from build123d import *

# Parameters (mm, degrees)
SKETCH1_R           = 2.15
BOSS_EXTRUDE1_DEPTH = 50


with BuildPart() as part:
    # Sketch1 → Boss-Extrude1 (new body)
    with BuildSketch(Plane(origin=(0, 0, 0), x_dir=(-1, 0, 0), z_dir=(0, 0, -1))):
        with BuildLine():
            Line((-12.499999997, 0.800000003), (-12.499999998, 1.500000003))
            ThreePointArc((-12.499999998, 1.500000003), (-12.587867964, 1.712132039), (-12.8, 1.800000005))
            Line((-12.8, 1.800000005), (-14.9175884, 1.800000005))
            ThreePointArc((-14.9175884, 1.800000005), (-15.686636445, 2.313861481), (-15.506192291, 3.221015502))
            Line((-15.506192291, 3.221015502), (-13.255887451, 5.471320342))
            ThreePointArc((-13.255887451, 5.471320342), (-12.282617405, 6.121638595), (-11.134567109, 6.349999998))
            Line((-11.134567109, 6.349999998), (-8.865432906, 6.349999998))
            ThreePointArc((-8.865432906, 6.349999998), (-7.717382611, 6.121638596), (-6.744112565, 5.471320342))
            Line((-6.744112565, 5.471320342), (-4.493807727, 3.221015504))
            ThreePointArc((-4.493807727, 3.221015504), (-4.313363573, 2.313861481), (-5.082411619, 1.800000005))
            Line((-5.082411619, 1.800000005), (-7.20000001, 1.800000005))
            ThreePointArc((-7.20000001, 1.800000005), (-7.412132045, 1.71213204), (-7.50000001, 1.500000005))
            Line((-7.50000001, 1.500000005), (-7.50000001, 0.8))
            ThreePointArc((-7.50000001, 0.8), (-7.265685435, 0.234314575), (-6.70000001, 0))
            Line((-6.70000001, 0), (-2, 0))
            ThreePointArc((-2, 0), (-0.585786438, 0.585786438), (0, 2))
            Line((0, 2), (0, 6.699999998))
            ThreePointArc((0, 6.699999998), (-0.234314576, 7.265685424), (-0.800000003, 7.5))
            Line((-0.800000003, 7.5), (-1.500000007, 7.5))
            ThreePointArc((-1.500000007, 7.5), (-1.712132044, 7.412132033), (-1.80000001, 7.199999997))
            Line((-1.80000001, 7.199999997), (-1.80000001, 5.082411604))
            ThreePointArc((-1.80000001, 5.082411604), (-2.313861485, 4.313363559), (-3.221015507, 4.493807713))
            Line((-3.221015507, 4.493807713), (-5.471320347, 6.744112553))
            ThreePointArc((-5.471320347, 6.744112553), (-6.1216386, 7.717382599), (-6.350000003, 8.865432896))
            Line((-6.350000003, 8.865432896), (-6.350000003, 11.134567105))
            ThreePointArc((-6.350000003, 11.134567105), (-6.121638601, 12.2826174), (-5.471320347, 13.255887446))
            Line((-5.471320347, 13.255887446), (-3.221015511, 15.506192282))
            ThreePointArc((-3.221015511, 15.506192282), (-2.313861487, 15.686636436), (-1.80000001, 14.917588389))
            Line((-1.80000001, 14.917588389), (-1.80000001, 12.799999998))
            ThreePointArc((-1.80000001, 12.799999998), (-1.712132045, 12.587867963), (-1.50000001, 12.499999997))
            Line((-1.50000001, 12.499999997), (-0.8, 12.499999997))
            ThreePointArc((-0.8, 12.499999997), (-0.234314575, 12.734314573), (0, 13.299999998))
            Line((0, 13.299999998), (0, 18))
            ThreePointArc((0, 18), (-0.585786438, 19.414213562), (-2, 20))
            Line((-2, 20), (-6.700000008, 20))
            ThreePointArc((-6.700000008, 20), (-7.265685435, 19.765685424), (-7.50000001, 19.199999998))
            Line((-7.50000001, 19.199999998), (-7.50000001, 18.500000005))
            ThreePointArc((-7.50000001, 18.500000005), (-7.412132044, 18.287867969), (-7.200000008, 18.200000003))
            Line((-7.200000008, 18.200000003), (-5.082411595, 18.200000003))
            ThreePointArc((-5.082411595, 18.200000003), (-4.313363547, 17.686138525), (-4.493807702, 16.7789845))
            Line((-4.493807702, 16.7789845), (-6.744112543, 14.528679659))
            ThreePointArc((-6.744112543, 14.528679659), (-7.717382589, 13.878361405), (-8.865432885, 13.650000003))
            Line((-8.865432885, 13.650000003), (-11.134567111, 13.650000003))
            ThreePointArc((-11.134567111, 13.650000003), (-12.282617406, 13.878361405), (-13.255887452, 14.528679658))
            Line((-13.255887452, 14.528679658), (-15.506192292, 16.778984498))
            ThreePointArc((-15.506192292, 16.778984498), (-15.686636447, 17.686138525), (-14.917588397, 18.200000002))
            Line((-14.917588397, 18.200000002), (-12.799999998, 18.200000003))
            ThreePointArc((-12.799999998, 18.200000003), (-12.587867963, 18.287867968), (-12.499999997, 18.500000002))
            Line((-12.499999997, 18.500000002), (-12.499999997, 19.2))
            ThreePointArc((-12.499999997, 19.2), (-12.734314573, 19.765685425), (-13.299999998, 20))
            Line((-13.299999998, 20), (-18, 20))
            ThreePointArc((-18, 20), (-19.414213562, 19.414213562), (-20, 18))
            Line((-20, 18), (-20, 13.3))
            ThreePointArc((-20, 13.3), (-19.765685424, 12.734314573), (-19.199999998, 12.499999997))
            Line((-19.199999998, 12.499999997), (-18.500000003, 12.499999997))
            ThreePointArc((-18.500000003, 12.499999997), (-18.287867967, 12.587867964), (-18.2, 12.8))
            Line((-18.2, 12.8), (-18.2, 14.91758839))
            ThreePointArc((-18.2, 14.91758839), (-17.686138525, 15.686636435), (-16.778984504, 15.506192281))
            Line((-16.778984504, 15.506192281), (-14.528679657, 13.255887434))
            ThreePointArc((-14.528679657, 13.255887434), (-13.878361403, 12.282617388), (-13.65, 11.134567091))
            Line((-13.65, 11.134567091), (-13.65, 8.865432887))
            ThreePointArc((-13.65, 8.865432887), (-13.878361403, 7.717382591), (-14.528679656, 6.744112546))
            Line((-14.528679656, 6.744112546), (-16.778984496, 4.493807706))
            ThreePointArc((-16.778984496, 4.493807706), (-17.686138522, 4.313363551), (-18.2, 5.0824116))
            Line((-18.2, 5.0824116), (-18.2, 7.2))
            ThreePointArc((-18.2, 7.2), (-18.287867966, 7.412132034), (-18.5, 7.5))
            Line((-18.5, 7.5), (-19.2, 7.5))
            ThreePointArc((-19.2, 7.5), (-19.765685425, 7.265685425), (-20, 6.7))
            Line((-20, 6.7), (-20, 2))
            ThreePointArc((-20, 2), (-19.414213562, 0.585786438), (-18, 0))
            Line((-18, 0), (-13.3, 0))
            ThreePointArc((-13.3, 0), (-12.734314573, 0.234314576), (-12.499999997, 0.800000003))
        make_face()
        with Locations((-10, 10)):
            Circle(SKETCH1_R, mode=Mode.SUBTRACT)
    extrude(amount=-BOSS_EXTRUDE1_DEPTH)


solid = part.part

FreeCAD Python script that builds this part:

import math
import FreeCAD as App
import Part
import Sketcher
Q = App.Units.Quantity

doc = App.newDocument("Part")
body = doc.addObject("PartDesign::Body", "Body")

# Sketch on XY plane
sketch1 = body.newObject("Sketcher::SketchObject", "Sketch")
sketch1.AttachmentSupport = (doc.getObject("XY_Plane"), [""])
sketch1.MapMode = "FlatFace"
sketch1.addGeometry([
    Part.LineSegment(App.Vector(12.5, 0.8, 0), App.Vector(12.5, 1.5, 0)),  # 0
    Part.ArcOfCircle(Part.Circle(App.Vector(12.8, 1.5, 0), App.Vector(0, 0, 1), 0.3), math.radians(90), math.radians(180)),  # 1
    Part.LineSegment(App.Vector(12.8, 1.8, 0), App.Vector(14.92, 1.8, 0)),  # 2
    Part.ArcOfCircle(Part.Circle(App.Vector(14.92, 2.63, 0), App.Vector(0, 0, 1), 0.83), math.radians(-90), math.radians(45)),  # 3
    Part.LineSegment(App.Vector(15.51, 3.22, 0), App.Vector(13.26, 5.47, 0)),  # 4
    Part.ArcOfCircle(Part.Circle(App.Vector(11.13, 3.35, 0), App.Vector(0, 0, 1), 3), math.radians(45), math.radians(90)),  # 5
    Part.LineSegment(App.Vector(11.13, 6.35, 0), App.Vector(8.87, 6.35, 0)),  # 6
    Part.ArcOfCircle(Part.Circle(App.Vector(8.87, 3.35, 0), App.Vector(0, 0, 1), 3), math.radians(90), math.radians(135)),  # 7
    Part.LineSegment(App.Vector(6.74, 5.47, 0), App.Vector(4.49, 3.22, 0)),  # 8
    Part.ArcOfCircle(Part.Circle(App.Vector(5.08, 2.63, 0), App.Vector(0, 0, 1), 0.83), math.radians(135), math.radians(270)),  # 9
    Part.LineSegment(App.Vector(5.08, 1.8, 0), App.Vector(7.2, 1.8, 0)),  # 10
    Part.ArcOfCircle(Part.Circle(App.Vector(7.2, 1.5, 0), App.Vector(0, 0, 1), 0.3), math.radians(0), math.radians(90)),  # 11
    Part.LineSegment(App.Vector(7.5, 1.5, 0), App.Vector(7.5, 0.8, 0)),  # 12
    Part.ArcOfCircle(Part.Circle(App.Vector(6.7, 0.8, 0), App.Vector(0, 0, 1), 0.8), math.radians(-90), math.radians(0)),  # 13
    Part.LineSegment(App.Vector(6.7, 0, 0), App.Vector(2, 0, 0)),  # 14
    Part.ArcOfCircle(Part.Circle(App.Vector(2, 2, 0), App.Vector(0, 0, 1), 2), math.radians(-180), math.radians(-90)),  # 15
    Part.LineSegment(App.Vector(0, 2, 0), App.Vector(0, 6.7, 0)),  # 16
    Part.ArcOfCircle(Part.Circle(App.Vector(0.8, 6.7, 0), App.Vector(0, 0, 1), 0.8), math.radians(90), math.radians(180)),  # 17
    Part.LineSegment(App.Vector(0.8, 7.5, 0), App.Vector(1.5, 7.5, 0)),  # 18
    Part.ArcOfCircle(Part.Circle(App.Vector(1.5, 7.2, 0), App.Vector(0, 0, 1), 0.3), math.radians(0), math.radians(90)),  # 19
    Part.LineSegment(App.Vector(1.8, 7.2, 0), App.Vector(1.8, 5.08, 0)),  # 20
    Part.ArcOfCircle(Part.Circle(App.Vector(2.63, 5.08, 0), App.Vector(0, 0, 1), 0.83), math.radians(180), math.radians(315)),  # 21
    Part.LineSegment(App.Vector(3.22, 4.49, 0), App.Vector(5.47, 6.74, 0)),  # 22
    Part.ArcOfCircle(Part.Circle(App.Vector(3.35, 8.87, 0), App.Vector(0, 0, 1), 3), math.radians(-45), math.radians(0)),  # 23
    Part.LineSegment(App.Vector(6.35, 8.87, 0), App.Vector(6.35, 11.13, 0)),  # 24
    Part.ArcOfCircle(Part.Circle(App.Vector(3.35, 11.13, 0), App.Vector(0, 0, 1), 3), math.radians(0), math.radians(45)),  # 25
    Part.LineSegment(App.Vector(5.47, 13.26, 0), App.Vector(3.22, 15.51, 0)),  # 26
    Part.ArcOfCircle(Part.Circle(App.Vector(2.63, 14.92, 0), App.Vector(0, 0, 1), 0.83), math.radians(45), math.radians(180)),  # 27
    Part.LineSegment(App.Vector(1.8, 14.92, 0), App.Vector(1.8, 12.8, 0)),  # 28
    Part.ArcOfCircle(Part.Circle(App.Vector(1.5, 12.8, 0), App.Vector(0, 0, 1), 0.3), math.radians(-90), math.radians(0)),  # 29
    Part.LineSegment(App.Vector(1.5, 12.5, 0), App.Vector(0.8, 12.5, 0)),  # 30
    Part.ArcOfCircle(Part.Circle(App.Vector(0.8, 13.3, 0), App.Vector(0, 0, 1), 0.8), math.radians(-180), math.radians(-90)),  # 31
    Part.LineSegment(App.Vector(0, 13.3, 0), App.Vector(0, 18, 0)),  # 32
    Part.ArcOfCircle(Part.Circle(App.Vector(2, 18, 0), App.Vector(0, 0, 1), 2), math.radians(90), math.radians(180)),  # 33
    Part.LineSegment(App.Vector(2, 20, 0), App.Vector(6.7, 20, 0)),  # 34
    Part.ArcOfCircle(Part.Circle(App.Vector(6.7, 19.2, 0), App.Vector(0, 0, 1), 0.8), math.radians(0), math.radians(90)),  # 35
    Part.LineSegment(App.Vector(7.5, 19.2, 0), App.Vector(7.5, 18.5, 0)),  # 36
    Part.ArcOfCircle(Part.Circle(App.Vector(7.2, 18.5, 0), App.Vector(0, 0, 1), 0.3), math.radians(-90), math.radians(0)),  # 37
    Part.LineSegment(App.Vector(7.2, 18.2, 0), App.Vector(5.08, 18.2, 0)),  # 38
    Part.ArcOfCircle(Part.Circle(App.Vector(5.08, 17.37, 0), App.Vector(0, 0, 1), 0.83), math.radians(90), math.radians(225)),  # 39
    Part.LineSegment(App.Vector(4.49, 16.78, 0), App.Vector(6.74, 14.53, 0)),  # 40
    Part.ArcOfCircle(Part.Circle(App.Vector(8.87, 16.65, 0), App.Vector(0, 0, 1), 3), math.radians(-135), math.radians(-90)),  # 41
    Part.LineSegment(App.Vector(8.87, 13.65, 0), App.Vector(11.13, 13.65, 0)),  # 42
    Part.ArcOfCircle(Part.Circle(App.Vector(11.13, 16.65, 0), App.Vector(0, 0, 1), 3), math.radians(-90), math.radians(-45)),  # 43
    Part.LineSegment(App.Vector(13.26, 14.53, 0), App.Vector(15.51, 16.78, 0)),  # 44
    Part.ArcOfCircle(Part.Circle(App.Vector(14.92, 17.37, 0), App.Vector(0, 0, 1), 0.83), math.radians(-45), math.radians(90)),  # 45
    Part.LineSegment(App.Vector(14.92, 18.2, 0), App.Vector(12.8, 18.2, 0)),  # 46
    Part.ArcOfCircle(Part.Circle(App.Vector(12.8, 18.5, 0), App.Vector(0, 0, 1), 0.3), math.radians(-180), math.radians(-90)),  # 47
    Part.LineSegment(App.Vector(12.5, 18.5, 0), App.Vector(12.5, 19.2, 0)),  # 48
    Part.ArcOfCircle(Part.Circle(App.Vector(13.3, 19.2, 0), App.Vector(0, 0, 1), 0.8), math.radians(90), math.radians(180)),  # 49
    Part.LineSegment(App.Vector(13.3, 20, 0), App.Vector(18, 20, 0)),  # 50
    Part.ArcOfCircle(Part.Circle(App.Vector(18, 18, 0), App.Vector(0, 0, 1), 2), math.radians(0), math.radians(90)),  # 51
    Part.LineSegment(App.Vector(20, 18, 0), App.Vector(20, 13.3, 0)),  # 52
    Part.ArcOfCircle(Part.Circle(App.Vector(19.2, 13.3, 0), App.Vector(0, 0, 1), 0.8), math.radians(-90), math.radians(0)),  # 53
    Part.LineSegment(App.Vector(19.2, 12.5, 0), App.Vector(18.5, 12.5, 0)),  # 54
    Part.ArcOfCircle(Part.Circle(App.Vector(18.5, 12.8, 0), App.Vector(0, 0, 1), 0.3), math.radians(-180), math.radians(-90)),  # 55
    Part.LineSegment(App.Vector(18.2, 12.8, 0), App.Vector(18.2, 14.92, 0)),  # 56
    Part.ArcOfCircle(Part.Circle(App.Vector(17.37, 14.92, 0), App.Vector(0, 0, 1), 0.83), math.radians(0), math.radians(135)),  # 57
    Part.LineSegment(App.Vector(16.78, 15.51, 0), App.Vector(14.53, 13.26, 0)),  # 58
    Part.ArcOfCircle(Part.Circle(App.Vector(16.65, 11.13, 0), App.Vector(0, 0, 1), 3), math.radians(135), math.radians(180)),  # 59
    Part.LineSegment(App.Vector(13.65, 11.13, 0), App.Vector(13.65, 8.87, 0)),  # 60
    Part.ArcOfCircle(Part.Circle(App.Vector(16.65, 8.87, 0), App.Vector(0, 0, 1), 3), math.radians(-180), math.radians(-135)),  # 61
    Part.LineSegment(App.Vector(14.53, 6.74, 0), App.Vector(16.78, 4.49, 0)),  # 62
    Part.ArcOfCircle(Part.Circle(App.Vector(17.37, 5.08, 0), App.Vector(0, 0, 1), 0.83), math.radians(-135), math.radians(0)),  # 63
    Part.LineSegment(App.Vector(18.2, 5.08, 0), App.Vector(18.2, 7.2, 0)),  # 64
    Part.ArcOfCircle(Part.Circle(App.Vector(18.5, 7.2, 0), App.Vector(0, 0, 1), 0.3), math.radians(90), math.radians(180)),  # 65
    Part.LineSegment(App.Vector(18.5, 7.5, 0), App.Vector(19.2, 7.5, 0)),  # 66
    Part.ArcOfCircle(Part.Circle(App.Vector(19.2, 6.7, 0), App.Vector(0, 0, 1), 0.8), math.radians(0), math.radians(90)),  # 67
    Part.LineSegment(App.Vector(20, 6.7, 0), App.Vector(20, 2, 0)),  # 68
    Part.ArcOfCircle(Part.Circle(App.Vector(18, 2, 0), App.Vector(0, 0, 1), 2), math.radians(-90), math.radians(0)),  # 69
    Part.LineSegment(App.Vector(18, 0, 0), App.Vector(13.3, 0, 0)),  # 70
    Part.ArcOfCircle(Part.Circle(App.Vector(13.3, 0.8, 0), App.Vector(0, 0, 1), 0.8), math.radians(180), math.radians(270)),  # 71
    Part.Circle(App.Vector(10, 10, 0), App.Vector(0, 0, 1), 2.15),  # 72
], False)
sketch1.addConstraint([
    Sketcher.Constraint("Tangent", 0, 2, 1, 2),
    Sketcher.Constraint("Tangent", 1, 1, 2, 1),
    Sketcher.Constraint("Tangent", 2, 2, 3, 1),
    Sketcher.Constraint("Tangent", 3, 2, 4, 1),
    Sketcher.Constraint("Tangent", 4, 2, 5, 1),
    Sketcher.Constraint("Tangent", 5, 2, 6, 1),
    Sketcher.Constraint("Tangent", 6, 2, 7, 1),
    Sketcher.Constraint("Tangent", 7, 2, 8, 1),
    Sketcher.Constraint("Tangent", 8, 2, 9, 1),
    Sketcher.Constraint("Tangent", 9, 2, 10, 1),
    Sketcher.Constraint("Tangent", 10, 2, 11, 2),
    Sketcher.Constraint("Tangent", 11, 1, 12, 1),
    Sketcher.Constraint("Tangent", 12, 2, 13, 2),
    Sketcher.Constraint("Tangent", 13, 1, 14, 1),
    Sketcher.Constraint("Tangent", 14, 2, 15, 2),
    Sketcher.Constraint("Tangent", 15, 1, 16, 1),
    Sketcher.Constraint("Tangent", 16, 2, 17, 2),
    Sketcher.Constraint("Tangent", 17, 1, 18, 1),
    Sketcher.Constraint("Tangent", 18, 2, 19, 2),
    Sketcher.Constraint("Tangent", 19, 1, 20, 1),
    Sketcher.Constraint("Tangent", 20, 2, 21, 1),
    Sketcher.Constraint("Tangent", 21, 2, 22, 1),
    Sketcher.Constraint("Tangent", 22, 2, 23, 1),
    Sketcher.Constraint("Tangent", 23, 2, 24, 1),
    Sketcher.Constraint("Tangent", 24, 2, 25, 1),
    Sketcher.Constraint("Tangent", 25, 2, 26, 1),
    Sketcher.Constraint("Tangent", 26, 2, 27, 1),
    Sketcher.Constraint("Tangent", 27, 2, 28, 1),
    Sketcher.Constraint("Tangent", 28, 2, 29, 2),
    Sketcher.Constraint("Tangent", 29, 1, 30, 1),
    Sketcher.Constraint("Tangent", 30, 2, 31, 2),
    Sketcher.Constraint("Tangent", 31, 1, 32, 1),
    Sketcher.Constraint("Tangent", 32, 2, 33, 2),
    Sketcher.Constraint("Tangent", 33, 1, 34, 1),
    Sketcher.Constraint("Tangent", 34, 2, 35, 2),
    Sketcher.Constraint("Tangent", 35, 1, 36, 1),
    Sketcher.Constraint("Tangent", 36, 2, 37, 2),
    Sketcher.Constraint("Tangent", 37, 1, 38, 1),
    Sketcher.Constraint("Tangent", 38, 2, 39, 1),
    Sketcher.Constraint("Tangent", 39, 2, 40, 1),
    Sketcher.Constraint("Tangent", 40, 2, 41, 1),
    Sketcher.Constraint("Tangent", 41, 2, 42, 1),
    Sketcher.Constraint("Tangent", 42, 2, 43, 1),
    Sketcher.Constraint("Tangent", 43, 2, 44, 1),
    Sketcher.Constraint("Tangent", 44, 2, 45, 1),
    Sketcher.Constraint("Tangent", 45, 2, 46, 1),
    Sketcher.Constraint("Tangent", 46, 2, 47, 2),
    Sketcher.Constraint("Tangent", 47, 1, 48, 1),
    Sketcher.Constraint("Tangent", 48, 2, 49, 2),
    Sketcher.Constraint("Tangent", 49, 1, 50, 1),
    Sketcher.Constraint("Tangent", 50, 2, 51, 2),
    Sketcher.Constraint("Tangent", 51, 1, 52, 1),
    Sketcher.Constraint("Tangent", 52, 2, 53, 2),
    Sketcher.Constraint("Tangent", 53, 1, 54, 1),
    Sketcher.Constraint("Tangent", 54, 2, 55, 2),
    Sketcher.Constraint("Tangent", 55, 1, 56, 1),
    Sketcher.Constraint("Tangent", 56, 2, 57, 1),
    Sketcher.Constraint("Tangent", 57, 2, 58, 1),
    Sketcher.Constraint("Tangent", 58, 2, 59, 1),
    Sketcher.Constraint("Tangent", 59, 2, 60, 1),
    Sketcher.Constraint("Tangent", 60, 2, 61, 1),
    Sketcher.Constraint("Tangent", 61, 2, 62, 1),
    Sketcher.Constraint("Tangent", 62, 2, 63, 1),
    Sketcher.Constraint("Tangent", 63, 2, 64, 1),
    Sketcher.Constraint("Tangent", 64, 2, 65, 2),
    Sketcher.Constraint("Tangent", 65, 1, 66, 1),
    Sketcher.Constraint("Tangent", 66, 2, 67, 2),
    Sketcher.Constraint("Tangent", 67, 1, 68, 1),
    Sketcher.Constraint("Tangent", 68, 2, 69, 2),
    Sketcher.Constraint("Tangent", 69, 1, 70, 1),
    Sketcher.Constraint("Tangent", 70, 2, 71, 2),
    Sketcher.Constraint("Tangent", 71, 1, 0, 1),
    Sketcher.Constraint("Vertical", 0),
    Sketcher.Constraint("Horizontal", 2),
    Sketcher.Constraint("Horizontal", 6),
    Sketcher.Constraint("Horizontal", 10),
    Sketcher.Constraint("Vertical", 12),
    Sketcher.Constraint("Horizontal", 14),
    Sketcher.Constraint("Vertical", 16),
    Sketcher.Constraint("Horizontal", 18),
    Sketcher.Constraint("Vertical", 20),
    Sketcher.Constraint("Vertical", 24),
    Sketcher.Constraint("Vertical", 28),
    Sketcher.Constraint("Horizontal", 30),
    Sketcher.Constraint("Vertical", 32),
    Sketcher.Constraint("Horizontal", 34),
    Sketcher.Constraint("Vertical", 36),
    Sketcher.Constraint("Horizontal", 38),
    Sketcher.Constraint("Horizontal", 42),
    Sketcher.Constraint("Horizontal", 46),
    Sketcher.Constraint("Vertical", 48),
    Sketcher.Constraint("Horizontal", 50),
    Sketcher.Constraint("Vertical", 52),
    Sketcher.Constraint("Horizontal", 54),
    Sketcher.Constraint("Vertical", 56),
    Sketcher.Constraint("Vertical", 60),
    Sketcher.Constraint("Vertical", 64),
    Sketcher.Constraint("Horizontal", 66),
    Sketcher.Constraint("Vertical", 68),
    Sketcher.Constraint("Horizontal", 70),
    Sketcher.Constraint("Equal", 5, 7),
    Sketcher.Constraint("Equal", 3, 9),
    Sketcher.Constraint("Equal", 1, 11),
    Sketcher.Constraint("Equal", 13, 17),
    Sketcher.Constraint("Equal", 11, 19),
    Sketcher.Constraint("Equal", 9, 21),
    Sketcher.Constraint("Equal", 7, 23),
    Sketcher.Constraint("Equal", 23, 25),
    Sketcher.Constraint("Equal", 21, 27),
    Sketcher.Constraint("Equal", 19, 29),
    Sketcher.Constraint("Equal", 17, 31),
    Sketcher.Constraint("Equal", 15, 33),
    Sketcher.Constraint("Equal", 31, 35),
    Sketcher.Constraint("Equal", 29, 37),
    Sketcher.Constraint("Equal", 27, 39),
    Sketcher.Constraint("Equal", 25, 41),
    Sketcher.Constraint("Equal", 41, 43),
    Sketcher.Constraint("Equal", 39, 45),
    Sketcher.Constraint("Equal", 37, 47),
    Sketcher.Constraint("Equal", 35, 49),
    Sketcher.Constraint("Equal", 33, 51),
    Sketcher.Constraint("Equal", 49, 53),
    Sketcher.Constraint("Equal", 47, 55),
    Sketcher.Constraint("Equal", 45, 57),
    Sketcher.Constraint("Equal", 43, 59),
    Sketcher.Constraint("Equal", 59, 61),
    Sketcher.Constraint("Equal", 57, 63),
    Sketcher.Constraint("Equal", 55, 65),
    Sketcher.Constraint("Equal", 53, 67),
    Sketcher.Constraint("Equal", 51, 69),
    Sketcher.Constraint("Equal", 67, 71),
    Sketcher.Constraint("PointOnObject", 13, 1, -1),
    Sketcher.Constraint("PointOnObject", 15, 1, -2),
    Sketcher.Constraint("PointOnObject", 31, 1, -2),
    Sketcher.Constraint("PointOnObject", 69, 1, -1),
    Sketcher.Constraint("Perpendicular", 4, 8),
    Sketcher.Constraint("Parallel", 8, 22),
    Sketcher.Constraint("Perpendicular", 22, 26),
    Sketcher.Constraint("Parallel", 26, 40),
    Sketcher.Constraint("Perpendicular", 40, 44),
    Sketcher.Constraint("Parallel", 44, 58),
    Sketcher.Constraint("Perpendicular", 58, 62),
    Sketcher.Constraint("Horizontal", 3, 3, 9, 3),
    Sketcher.Constraint("Horizontal", 39, 3, 45, 3),
    Sketcher.Constraint("Horizontal", 35, 3, 49, 3),
    Sketcher.Constraint("Horizontal", 31, 3, 53, 3),
    Sketcher.Constraint("Horizontal", 27, 3, 57, 3),
    Sketcher.Constraint("Horizontal", 25, 3, 59, 3),
    Sketcher.Constraint("Horizontal", 23, 3, 61, 3),
    Sketcher.Constraint("Horizontal", 21, 3, 63, 3),
    Sketcher.Constraint("Horizontal", 19, 3, 65, 3),
    Sketcher.Constraint("Horizontal", 4, 2, 7, 2),
    Sketcher.Constraint("Vertical", 21, 3, 27, 3),
    Sketcher.Constraint("Vertical", 13, 3, 35, 3),
    Sketcher.Constraint("Vertical", 9, 3, 39, 3),
    Sketcher.Constraint("Vertical", 7, 3, 41, 3),
    Sketcher.Constraint("Vertical", 5, 3, 43, 3),
    Sketcher.Constraint("Vertical", 1, 3, 47, 3),
    Sketcher.Constraint("Vertical", 53, 3, 67, 3),
    Sketcher.Constraint("Equal", 2, 10),
    Sketcher.Constraint("Equal", 34, 50),
    Sketcher.Constraint("Equal", 30, 54),
    Sketcher.Constraint("Equal", 66, 0),
    Sketcher.Constraint("Equal", 70, 16),
    Sketcher.Constraint("Equal", 46, 20),
    Sketcher.Constraint("Equal", 42, 24),
    Sketcher.Constraint("Equal", 20, 28),
    Sketcher.Constraint("Equal", 16, 32),
    Sketcher.Constraint("Equal", 12, 36),
    Sketcher.Constraint("Equal", 8, 22),
    Sketcher.Constraint("Radius", 5, Q("3 mm")),
    Sketcher.Constraint("Radius", 15, Q("2 mm")),
    Sketcher.Constraint("Diameter", 72, Q("4.3 mm")),
    Sketcher.Constraint("Radius", 1, Q("0.3 mm")),
    Sketcher.Constraint("Radius", 13, Q("0.8 mm")),
    Sketcher.Constraint("DistanceX", 14, 2, 14, 1, Q("4.7 mm")),
    Sketcher.Constraint("DistanceX", 18, 1, 18, 2, Q("0.7 mm")),
    Sketcher.Constraint("DistanceY", -1, 1, 33, 3, Q("18 mm")),
    Sketcher.Constraint("DistanceX", -1, 1, 72, 3, Q("10 mm")),
    Sketcher.Constraint("DistanceY", -1, 1, 72, 3, Q("10 mm")),
    Sketcher.Constraint("DistanceY", -1, 1, 5, 3, Q("3.35 mm")),
    Sketcher.Constraint("Radius", 3, Q("0.832412 mm")),
    Sketcher.Constraint("DistanceX", 2, 1, 2, 2, Q("2.117588 mm")),
])
pad1 = body.newObject("PartDesign::Pad", "Pad")
pad1.Profile = sketch1
pad1.Length = 50

doc.recompute()
